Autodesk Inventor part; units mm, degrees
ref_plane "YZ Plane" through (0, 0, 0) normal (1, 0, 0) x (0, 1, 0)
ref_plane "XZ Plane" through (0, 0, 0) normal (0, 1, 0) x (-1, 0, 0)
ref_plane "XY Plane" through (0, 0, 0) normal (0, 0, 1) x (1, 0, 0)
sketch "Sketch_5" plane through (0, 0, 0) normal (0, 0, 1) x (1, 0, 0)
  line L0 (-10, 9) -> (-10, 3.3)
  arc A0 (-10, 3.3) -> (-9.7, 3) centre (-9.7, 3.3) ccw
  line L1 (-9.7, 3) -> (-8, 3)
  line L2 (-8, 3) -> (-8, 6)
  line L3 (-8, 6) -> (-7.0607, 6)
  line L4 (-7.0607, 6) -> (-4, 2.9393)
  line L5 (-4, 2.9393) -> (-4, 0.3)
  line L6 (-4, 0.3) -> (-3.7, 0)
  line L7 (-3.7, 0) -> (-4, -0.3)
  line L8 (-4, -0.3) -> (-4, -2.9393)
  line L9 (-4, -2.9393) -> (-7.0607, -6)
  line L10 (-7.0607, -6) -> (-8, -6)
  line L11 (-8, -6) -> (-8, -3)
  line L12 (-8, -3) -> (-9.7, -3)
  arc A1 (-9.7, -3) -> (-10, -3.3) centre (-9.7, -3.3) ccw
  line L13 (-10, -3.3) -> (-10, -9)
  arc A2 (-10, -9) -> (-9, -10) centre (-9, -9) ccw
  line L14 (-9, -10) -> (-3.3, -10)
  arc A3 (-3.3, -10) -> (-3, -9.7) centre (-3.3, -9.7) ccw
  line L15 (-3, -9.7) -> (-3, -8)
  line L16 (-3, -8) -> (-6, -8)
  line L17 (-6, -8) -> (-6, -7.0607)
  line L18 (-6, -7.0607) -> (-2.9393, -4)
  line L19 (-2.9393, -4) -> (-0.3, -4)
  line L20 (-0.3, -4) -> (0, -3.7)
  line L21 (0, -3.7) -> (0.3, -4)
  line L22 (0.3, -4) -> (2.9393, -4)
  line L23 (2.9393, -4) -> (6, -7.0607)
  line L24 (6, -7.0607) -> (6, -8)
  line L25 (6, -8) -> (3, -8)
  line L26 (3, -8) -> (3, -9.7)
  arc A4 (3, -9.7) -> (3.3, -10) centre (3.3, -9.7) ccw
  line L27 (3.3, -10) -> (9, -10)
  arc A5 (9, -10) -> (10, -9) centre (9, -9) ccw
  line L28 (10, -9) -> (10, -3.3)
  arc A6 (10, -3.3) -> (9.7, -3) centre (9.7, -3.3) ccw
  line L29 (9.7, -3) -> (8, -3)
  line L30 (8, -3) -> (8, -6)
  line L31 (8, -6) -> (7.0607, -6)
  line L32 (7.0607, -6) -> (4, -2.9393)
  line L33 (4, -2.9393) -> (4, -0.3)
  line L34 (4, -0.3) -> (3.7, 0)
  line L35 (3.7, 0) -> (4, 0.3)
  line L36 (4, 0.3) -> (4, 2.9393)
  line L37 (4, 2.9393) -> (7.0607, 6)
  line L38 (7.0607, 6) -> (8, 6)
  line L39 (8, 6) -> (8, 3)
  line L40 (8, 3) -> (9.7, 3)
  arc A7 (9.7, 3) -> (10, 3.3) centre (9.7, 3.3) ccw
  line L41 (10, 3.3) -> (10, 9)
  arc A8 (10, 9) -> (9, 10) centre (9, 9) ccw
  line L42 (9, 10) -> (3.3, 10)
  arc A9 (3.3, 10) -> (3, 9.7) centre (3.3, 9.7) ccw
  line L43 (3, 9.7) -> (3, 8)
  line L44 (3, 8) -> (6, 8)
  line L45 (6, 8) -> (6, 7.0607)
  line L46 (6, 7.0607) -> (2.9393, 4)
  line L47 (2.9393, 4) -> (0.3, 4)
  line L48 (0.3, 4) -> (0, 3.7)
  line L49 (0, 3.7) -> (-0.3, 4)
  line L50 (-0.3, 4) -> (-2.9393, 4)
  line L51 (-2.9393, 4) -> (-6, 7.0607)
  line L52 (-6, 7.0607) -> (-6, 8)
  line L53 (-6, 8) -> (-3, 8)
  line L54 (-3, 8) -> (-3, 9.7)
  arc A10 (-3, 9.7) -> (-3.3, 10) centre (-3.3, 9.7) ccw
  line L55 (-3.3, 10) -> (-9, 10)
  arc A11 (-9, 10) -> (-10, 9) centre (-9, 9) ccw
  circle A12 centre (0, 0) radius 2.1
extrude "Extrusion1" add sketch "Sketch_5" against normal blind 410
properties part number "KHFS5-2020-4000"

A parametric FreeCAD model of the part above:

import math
import FreeCAD as App
import Part
import Sketcher
from FreeCAD import Vector
Q = App.Units.Quantity

doc = App.newDocument("Part")
body = doc.addObject("PartDesign::Body", "Body")

sketch1 = doc.addObject("Sketcher::SketchObject", "Sketch")
body.addObject(sketch1)
sketch1.AttachmentSupport = (doc.XY_Plane, [""])
sketch1.MapMode = "FlatFace"
sketch1.addGeometry([
    Part.ArcOfCircle(Part.Circle(Vector(-9, 9, 0), Vector(0, 0, 1), 1), math.radians(90), math.radians(180)),
    Part.LineSegment(Vector(-10, 9, 0), Vector(-10, 3.3, 0)),
    Part.ArcOfCircle(Part.Circle(Vector(-9.7, 3.3, 0), Vector(0, 0, 1), 0.3), math.radians(180), math.radians(270)),
    Part.LineSegment(Vector(-9.7, 3, 0), Vector(-8, 3, 0)),
    Part.LineSegment(Vector(-8, 3, 0), Vector(-8, 6, 0)),
    Part.LineSegment(Vector(-8, 6, 0), Vector(-7.0607, 6, 0)),
    Part.LineSegment(Vector(-7.0607, 6, 0), Vector(-4, 2.9393, 0)),
    Part.LineSegment(Vector(-4, 2.9393, 0), Vector(-4, 0.3, 0)),
    Part.LineSegment(Vector(-4, 0.3, 0), Vector(-3.7, 0, 0)),
    Part.LineSegment(Vector(-3.7, 0, 0), Vector(-4, -0.3, 0)),
    Part.LineSegment(Vector(-4, -0.3, 0), Vector(-4, -2.9393, 0)),
    Part.LineSegment(Vector(-4, -2.9393, 0), Vector(-7.0607, -6, 0)),
    Part.LineSegment(Vector(-7.0607, -6, 0), Vector(-8, -6, 0)),
    Part.LineSegment(Vector(-8, -6, 0), Vector(-8, -3, 0)),
    Part.LineSegment(Vector(-8, -3, 0), Vector(-9.7, -3, 0)),
    Part.ArcOfCircle(Part.Circle(Vector(-9.7, -3.3, 0), Vector(0, 0, 1), 0.3), math.radians(90), math.radians(180)),
    Part.LineSegment(Vector(-10, -3.3, 0), Vector(-10, -9, 0)),
    Part.ArcOfCircle(Part.Circle(Vector(-9, -9, 0), Vector(0, 0, 1), 1), math.radians(180), math.radians(270)),
    Part.LineSegment(Vector(-9, -10, 0), Vector(-3.3, -10, 0)),
    Part.ArcOfCircle(Part.Circle(Vector(-3.3, -9.7, 0), Vector(0, 0, 1), 0.3), math.radians(-90), math.radians(0)),
    Part.LineSegment(Vector(-3, -9.7, 0), Vector(-3, -8, 0)),
    Part.LineSegment(Vector(-3, -8, 0), Vector(-6, -8, 0)),
    Part.LineSegment(Vector(-6, -8, 0), Vector(-6, -7.0607, 0)),
    Part.LineSegment(Vector(-6, -7.0607, 0), Vector(-2.9393, -4, 0)),
    Part.LineSegment(Vector(-2.9393, -4, 0), Vector(-0.3, -4, 0)),
    Part.LineSegment(Vector(-0.3, -4, 0), Vector(0, -3.7, 0)),
    Part.LineSegment(Vector(0, -3.7, 0), Vector(0.3, -4, 0)),
    Part.LineSegment(Vector(0.3, -4, 0), Vector(2.9393, -4, 0)),
    Part.LineSegment(Vector(2.9393, -4, 0), Vector(6, -7.0607, 0)),
    Part.LineSegment(Vector(6, -7.0607, 0), Vector(6, -8, 0)),
    Part.LineSegment(Vector(6, -8, 0), Vector(3, -8, 0)),
    Part.LineSegment(Vector(3, -8, 0), Vector(3, -9.7, 0)),
    Part.ArcOfCircle(Part.Circle(Vector(3.3, -9.7, 0), Vector(0, 0, 1), 0.3), math.radians(180), math.radians(270)),
    Part.LineSegment(Vector(3.3, -10, 0), Vector(9, -10, 0)),
    Part.ArcOfCircle(Part.Circle(Vector(9, -9, 0), Vector(0, 0, 1), 1), math.radians(-90), math.radians(0)),
    Part.LineSegment(Vector(10, -9, 0), Vector(10, -3.3, 0)),
    Part.ArcOfCircle(Part.Circle(Vector(9.7, -3.3, 0), Vector(0, 0, 1), 0.3), math.radians(0), math.radians(90)),
    Part.LineSegment(Vector(9.7, -3, 0), Vector(8, -3, 0)),
    Part.LineSegment(Vector(8, -3, 0), Vector(8, -6, 0)),
    Part.LineSegment(Vector(8, -6, 0), Vector(7.0607, -6, 0)),
    Part.LineSegment(Vector(7.0607, -6, 0), Vector(4, -2.9393, 0)),
    Part.LineSegment(Vector(4, -2.9393, 0), Vector(4, -0.3, 0)),
    Part.LineSegment(Vector(4, -0.3, 0), Vector(3.7, 0, 0)),
    Part.LineSegment(Vector(3.7, 0, 0), Vector(4, 0.3, 0)),
    Part.LineSegment(Vector(4, 0.3, 0), Vector(4, 2.9393, 0)),
    Part.LineSegment(Vector(4, 2.9393, 0), Vector(7.0607, 6, 0)),
    Part.LineSegment(Vector(7.0607, 6, 0), Vector(8, 6, 0)),
    Part.LineSegment(Vector(8, 6, 0), Vector(8, 3, 0)),
    Part.LineSegment(Vector(8, 3, 0), Vector(9.7, 3, 0)),
    Part.ArcOfCircle(Part.Circle(Vector(9.7, 3.3, 0), Vector(0, 0, 1), 0.3), math.radians(-90), math.radians(0)),
    Part.LineSegment(Vector(10, 3.3, 0), Vector(10, 9, 0)),
    Part.ArcOfCircle(Part.Circle(Vector(9, 9, 0), Vector(0, 0, 1), 1), math.radians(0), math.radians(90)),
    Part.LineSegment(Vector(9, 10, 0), Vector(3.3, 10, 0)),
    Part.ArcOfCircle(Part.Circle(Vector(3.3, 9.7, 0), Vector(0, 0, 1), 0.3), math.radians(90), math.radians(180)),
    Part.LineSegment(Vector(3, 9.7, 0), Vector(3, 8, 0)),
    Part.LineSegment(Vector(3, 8, 0), Vector(6, 8, 0)),
    Part.LineSegment(Vector(6, 8, 0), Vector(6, 7.0607, 0)),
    Part.LineSegment(Vector(6, 7.0607, 0), Vector(2.9393, 4, 0)),
    Part.LineSegment(Vector(2.9393, 4, 0), Vector(0.3, 4, 0)),
    Part.LineSegment(Vector(0.3, 4, 0), Vector(0, 3.7, 0)),
    Part.LineSegment(Vector(0, 3.7, 0), Vector(-0.3, 4, 0)),
    Part.LineSegment(Vector(-0.3, 4, 0), Vector(-2.9393, 4, 0)),
    Part.LineSegment(Vector(-2.9393, 4, 0), Vector(-6, 7.0607, 0)),
    Part.LineSegment(Vector(-6, 7.0607, 0), Vector(-6, 8, 0)),
    Part.LineSegment(Vector(-6, 8, 0), Vector(-3, 8, 0)),
    Part.LineSegment(Vector(-3, 8, 0), Vector(-3, 9.7, 0)),
    Part.ArcOfCircle(Part.Circle(Vector(-3.3, 9.7, 0), Vector(0, 0, 1), 0.3), math.radians(0), math.radians(90)),
    Part.LineSegment(Vector(-3.3, 10, 0), Vector(-9, 10, 0)),
    Part.Circle(Vector(0, 0, 0), Vector(0, 0, 1), 2.1),
], False)
sketch1.addConstraint([
    Sketcher.Constraint("Tangent", 0, 2, 1, 1),
    Sketcher.Constraint("Tangent", 1, 2, 2, 1),
    Sketcher.Constraint("Tangent", 2, 2, 3, 1),
    Sketcher.Constraint("Coincident", 3, 2, 4, 1),
    Sketcher.Constraint("Coincident", 4, 2, 5, 1),
    Sketcher.Constraint("Coincident", 5, 2, 6, 1),
    Sketcher.Constraint("Coincident", 6, 2, 7, 1),
    Sketcher.Constraint("Coincident", 7, 2, 8, 1),
    Sketcher.Constraint("Coincident", 8, 2, 9, 1),
    Sketcher.Constraint("Coincident", 9, 2, 10, 1),
    Sketcher.Constraint("Coincident", 10, 2, 11, 1),
    Sketcher.Constraint("Coincident", 11, 2, 12, 1),
    Sketcher.Constraint("Coincident", 12, 2, 13, 1),
    Sketcher.Constraint("Coincident", 13, 2, 14, 1),
    Sketcher.Constraint("Tangent", 14, 2, 15, 1),
    Sketcher.Constraint("Tangent", 15, 2, 16, 1),
    Sketcher.Constraint("Tangent", 16, 2, 17, 1),
    Sketcher.Constraint("Tangent", 17, 2, 18, 1),
    Sketcher.Constraint("Tangent", 18, 2, 19, 1),
    Sketcher.Constraint("Tangent", 19, 2, 20, 1),
    Sketcher.Constraint("Coincident", 20, 2, 21, 1),
    Sketcher.Constraint("Coincident", 21, 2, 22, 1),
    Sketcher.Constraint("Coincident", 22, 2, 23, 1),
    Sketcher.Constraint("Coincident", 23, 2, 24, 1),
    Sketcher.Constraint("Coincident", 24, 2, 25, 1),
    Sketcher.Constraint("Coincident", 25, 2, 26, 1),
    Sketcher.Constraint("Coincident", 26, 2, 27, 1),
    Sketcher.Constraint("Coincident", 27, 2, 28, 1),
    Sketcher.Constraint("Coincident", 28, 2, 29, 1),
    Sketcher.Constraint("Coincident", 29, 2, 30, 1),
    Sketcher.Constraint("Coincident", 30, 2, 31, 1),
    Sketcher.Constraint("Tangent", 31, 2, 32, 1),
    Sketcher.Constraint("Tangent", 32, 2, 33, 1),
    Sketcher.Constraint("Tangent", 33, 2, 34, 1),
    Sketcher.Constraint("Tangent", 34, 2, 35, 1),
    Sketcher.Constraint("Tangent", 35, 2, 36, 1),
    Sketcher.Constraint("Tangent", 36, 2, 37, 1),
    Sketcher.Constraint("Coincident", 37, 2, 38, 1),
    Sketcher.Constraint("Coincident", 38, 2, 39, 1),
    Sketcher.Constraint("Coincident", 39, 2, 40, 1),
    Sketcher.Constraint("Coincident", 40, 2, 41, 1),
    Sketcher.Constraint("Coincident", 41, 2, 42, 1),
    Sketcher.Constraint("Coincident", 42, 2, 43, 1),
    Sketcher.Constraint("Coincident", 43, 2, 44, 1),
    Sketcher.Constraint("Coincident", 44, 2, 45, 1),
    Sketcher.Constraint("Coincident", 45, 2, 46, 1),
    Sketcher.Constraint("Coincident", 46, 2, 47, 1),
    Sketcher.Constraint("Coincident", 47, 2, 48, 1),
    Sketcher.Constraint("Tangent", 48, 2, 49, 1),
    Sketcher.Constraint("Tangent", 49, 2, 50, 1),
    Sketcher.Constraint("Tangent", 50, 2, 51, 1),
    Sketcher.Constraint("Tangent", 51, 2, 52, 1),
    Sketcher.Constraint("Tangent", 52, 2, 53, 1),
    Sketcher.Constraint("Tangent", 53, 2, 54, 1),
    Sketcher.Constraint("Coincident", 54, 2, 55, 1),
    Sketcher.Constraint("Coincident", 55, 2, 56, 1),
    Sketcher.Constraint("Coincident", 56, 2, 57, 1),
    Sketcher.Constraint("Coincident", 57, 2, 58, 1),
    Sketcher.Constraint("Coincident", 58, 2, 59, 1),
    Sketcher.Constraint("Coincident", 59, 2, 60, 1),
    Sketcher.Constraint("Coincident", 60, 2, 61, 1),
    Sketcher.Constraint("Coincident", 61, 2, 62, 1),
    Sketcher.Constraint("Coincident", 62, 2, 63, 1),
    Sketcher.Constraint("Coincident", 63, 2, 64, 1),
    Sketcher.Constraint("Coincident", 64, 2, 65, 1),
    Sketcher.Constraint("Tangent", 65, 2, 66, 1),
    Sketcher.Constraint("Tangent", 66, 2, 67, 1),
    Sketcher.Constraint("Tangent", 67, 2, 0, 1),
    Sketcher.Constraint("Vertical", 1),
    Sketcher.Constraint("Horizontal", 3),
    Sketcher.Constraint("Vertical", 4),
    Sketcher.Constraint("Horizontal", 5),
    Sketcher.Constraint("Vertical", 7),
    Sketcher.Constraint("Vertical", 10),
    Sketcher.Constraint("Horizontal", 12),
    Sketcher.Constraint("Vertical", 13),
    Sketcher.Constraint("Horizontal", 14),
    Sketcher.Constraint("Vertical", 16),
    Sketcher.Constraint("Horizontal", 18),
    Sketcher.Constraint("Vertical", 20),
    Sketcher.Constraint("Horizontal", 21),
    Sketcher.Constraint("Vertical", 22),
    Sketcher.Constraint("Horizontal", 24),
    Sketcher.Constraint("Horizontal", 27),
    Sketcher.Constraint("Vertical", 29),
    Sketcher.Constraint("Horizontal", 30),
    Sketcher.Constraint("Vertical", 31),
    Sketcher.Constraint("Horizontal", 33),
    Sketcher.Constraint("Vertical", 35),
    Sketcher.Constraint("Horizontal", 37),
    Sketcher.Constraint("Vertical", 38),
    Sketcher.Constraint("Horizontal", 39),
    Sketcher.Constraint("Vertical", 41),
    Sketcher.Constraint("Vertical", 44),
    Sketcher.Constraint("Horizontal", 46),
    Sketcher.Constraint("Vertical", 47),
    Sketcher.Constraint("Horizontal", 48),
    Sketcher.Constraint("Vertical", 50),
    Sketcher.Constraint("Horizontal", 52),
    Sketcher.Constraint("Vertical", 54),
    Sketcher.Constraint("Horizontal", 55),
    Sketcher.Constraint("Vertical", 56),
    Sketcher.Constraint("Horizontal", 58),
    Sketcher.Constraint("Horizontal", 61),
    Sketcher.Constraint("Vertical", 63),
    Sketcher.Constraint("Horizontal", 64),
    Sketcher.Constraint("Vertical", 65),
    Sketcher.Constraint("Horizontal", 67),
    Sketcher.Constraint("Coincident", 68, 3, -1, 1),
    Sketcher.Constraint("Equal", 2, 15),
    Sketcher.Constraint("Equal", 0, 17),
    Sketcher.Constraint("Equal", 15, 19),
    Sketcher.Constraint("Equal", 19, 32),
    Sketcher.Constraint("Equal", 17, 34),
    Sketcher.Constraint("Equal", 32, 36),
    Sketcher.Constraint("Equal", 36, 49),
    Sketcher.Constraint("Equal", 34, 51),
    Sketcher.Constraint("Equal", 49, 53),
    Sketcher.Constraint("Equal", 53, 66),
    Sketcher.Constraint("Symmetric", 0, 3, 34, 3, -1, 1),
    Sketcher.Constraint("Symmetric", 15, 3, 49, 3, -1, 1),
    Sketcher.Constraint("Symmetric", 19, 3, 53, 3, -1, 1),
    Sketcher.Constraint("Symmetric", 3, 2, 37, 2, -1, 1),
    Sketcher.Constraint("Symmetric", 5, 2, 39, 2, -1, 1),
    Sketcher.Constraint("Symmetric", 6, 2, 40, 2, -1, 1),
    Sketcher.Constraint("Symmetric", 8, 2, 42, 2, -1, 1),
    Sketcher.Constraint("Symmetric", 9, 2, 43, 2, -1, 1),
    Sketcher.Constraint("Symmetric", 11, 2, 45, 2, -1, 1),
    Sketcher.Constraint("Symmetric", 21, 2, 55, 2, -1, 1),
    Sketcher.Constraint("Symmetric", 23, 2, 57, 2, -1, 1),
    Sketcher.Constraint("Symmetric", 25, 2, 59, 2, -1, 1),
    Sketcher.Constraint("Symmetric", 26, 2, 60, 2, -1, 1),
    Sketcher.Constraint("Symmetric", 28, 2, 62, 2, -1, 1),
    Sketcher.Constraint("Symmetric", 30, 2, 64, 2, -1, 1),
    Sketcher.Constraint("Symmetric", 19, 3, 32, 3, -2),
    Sketcher.Constraint("Symmetric", 15, 3, 36, 3, -2),
    Sketcher.Constraint("Symmetric", 24, 2, 26, 2, -2),
    Sketcher.Constraint("Symmetric", 22, 2, 28, 2, -2),
    Sketcher.Constraint("Symmetric", 12, 2, 38, 2, -2),
    Sketcher.Constraint("Symmetric", 10, 2, 40, 2, -2),
    Sketcher.Constraint("PointOnObject", 8, 2, -1),
    Sketcher.Constraint("PointOnObject", 25, 2, -2),
    Sketcher.Constraint("Parallel", 6, 8),
    Sketcher.Constraint("Perpendicular", 8, 9),
    Sketcher.Constraint("Parallel", 9, 11),
    Sketcher.Constraint("Parallel", 11, 23),
    Sketcher.Constraint("Parallel", 23, 25),
    Sketcher.Constraint("Perpendicular", 25, 26),
    Sketcher.Constraint("Parallel", 26, 28),
    Sketcher.Constraint("Parallel", 40, 42),
    Sketcher.Constraint("Parallel", 43, 45),
    Sketcher.Constraint("Parallel", 45, 57),
    Sketcher.Constraint("Parallel", 57, 59),
    Sketcher.Constraint("Parallel", 60, 62),
    Sketcher.Constraint("Horizontal", 21, 2, 29, 2),
    Sketcher.Constraint("Vertical", 38, 2, 46, 2),
    Sketcher.Constraint("Equal", 67, 1),
    Sketcher.Constraint("Equal", 64, 4),
    Sketcher.Constraint("Equal", 61, 7),
    Sketcher.Constraint("Equal", 48, 20),
    Sketcher.Constraint("Equal", 46, 22),
    Sketcher.Constraint("Equal", 11, 23),
    Sketcher.Constraint("Equal", 9, 25),
    Sketcher.Constraint("Radius", 0, Q("1 mm")),
    Sketcher.Constraint("Diameter", 68, Q("4.2 mm")),
    Sketcher.Constraint("Radius", 2, Q("0.3 mm")),
    Sketcher.Constraint("DistanceX", 21, 2, 21, 1, Q("3 mm")),
    Sketcher.Constraint("DistanceX", 3, 1, 3, 2, Q("1.7 mm")),
    Sketcher.Constraint("DistanceX", 18, 1, 18, 2, Q("5.7 mm")),
    Sketcher.Constraint("DistanceX", 0, 3, -1, 1, Q("9 mm")),
    Sketcher.Constraint("DistanceX", 6, 2, -1, 1, Q("4 mm")),
    Sketcher.Constraint("DistanceY", -1, 1, 7, 2, Q("0.3 mm")),
    Sketcher.Constraint("DistanceX", 5, 1, 5, 2, Q("0.9393 mm")),
])
pad1 = doc.addObject("PartDesign::Pad", "Pad")
body.addObject(pad1)
pad1.Profile = sketch1
pad1.Length = 410
pad1.Reversed = True

doc.recompute()
